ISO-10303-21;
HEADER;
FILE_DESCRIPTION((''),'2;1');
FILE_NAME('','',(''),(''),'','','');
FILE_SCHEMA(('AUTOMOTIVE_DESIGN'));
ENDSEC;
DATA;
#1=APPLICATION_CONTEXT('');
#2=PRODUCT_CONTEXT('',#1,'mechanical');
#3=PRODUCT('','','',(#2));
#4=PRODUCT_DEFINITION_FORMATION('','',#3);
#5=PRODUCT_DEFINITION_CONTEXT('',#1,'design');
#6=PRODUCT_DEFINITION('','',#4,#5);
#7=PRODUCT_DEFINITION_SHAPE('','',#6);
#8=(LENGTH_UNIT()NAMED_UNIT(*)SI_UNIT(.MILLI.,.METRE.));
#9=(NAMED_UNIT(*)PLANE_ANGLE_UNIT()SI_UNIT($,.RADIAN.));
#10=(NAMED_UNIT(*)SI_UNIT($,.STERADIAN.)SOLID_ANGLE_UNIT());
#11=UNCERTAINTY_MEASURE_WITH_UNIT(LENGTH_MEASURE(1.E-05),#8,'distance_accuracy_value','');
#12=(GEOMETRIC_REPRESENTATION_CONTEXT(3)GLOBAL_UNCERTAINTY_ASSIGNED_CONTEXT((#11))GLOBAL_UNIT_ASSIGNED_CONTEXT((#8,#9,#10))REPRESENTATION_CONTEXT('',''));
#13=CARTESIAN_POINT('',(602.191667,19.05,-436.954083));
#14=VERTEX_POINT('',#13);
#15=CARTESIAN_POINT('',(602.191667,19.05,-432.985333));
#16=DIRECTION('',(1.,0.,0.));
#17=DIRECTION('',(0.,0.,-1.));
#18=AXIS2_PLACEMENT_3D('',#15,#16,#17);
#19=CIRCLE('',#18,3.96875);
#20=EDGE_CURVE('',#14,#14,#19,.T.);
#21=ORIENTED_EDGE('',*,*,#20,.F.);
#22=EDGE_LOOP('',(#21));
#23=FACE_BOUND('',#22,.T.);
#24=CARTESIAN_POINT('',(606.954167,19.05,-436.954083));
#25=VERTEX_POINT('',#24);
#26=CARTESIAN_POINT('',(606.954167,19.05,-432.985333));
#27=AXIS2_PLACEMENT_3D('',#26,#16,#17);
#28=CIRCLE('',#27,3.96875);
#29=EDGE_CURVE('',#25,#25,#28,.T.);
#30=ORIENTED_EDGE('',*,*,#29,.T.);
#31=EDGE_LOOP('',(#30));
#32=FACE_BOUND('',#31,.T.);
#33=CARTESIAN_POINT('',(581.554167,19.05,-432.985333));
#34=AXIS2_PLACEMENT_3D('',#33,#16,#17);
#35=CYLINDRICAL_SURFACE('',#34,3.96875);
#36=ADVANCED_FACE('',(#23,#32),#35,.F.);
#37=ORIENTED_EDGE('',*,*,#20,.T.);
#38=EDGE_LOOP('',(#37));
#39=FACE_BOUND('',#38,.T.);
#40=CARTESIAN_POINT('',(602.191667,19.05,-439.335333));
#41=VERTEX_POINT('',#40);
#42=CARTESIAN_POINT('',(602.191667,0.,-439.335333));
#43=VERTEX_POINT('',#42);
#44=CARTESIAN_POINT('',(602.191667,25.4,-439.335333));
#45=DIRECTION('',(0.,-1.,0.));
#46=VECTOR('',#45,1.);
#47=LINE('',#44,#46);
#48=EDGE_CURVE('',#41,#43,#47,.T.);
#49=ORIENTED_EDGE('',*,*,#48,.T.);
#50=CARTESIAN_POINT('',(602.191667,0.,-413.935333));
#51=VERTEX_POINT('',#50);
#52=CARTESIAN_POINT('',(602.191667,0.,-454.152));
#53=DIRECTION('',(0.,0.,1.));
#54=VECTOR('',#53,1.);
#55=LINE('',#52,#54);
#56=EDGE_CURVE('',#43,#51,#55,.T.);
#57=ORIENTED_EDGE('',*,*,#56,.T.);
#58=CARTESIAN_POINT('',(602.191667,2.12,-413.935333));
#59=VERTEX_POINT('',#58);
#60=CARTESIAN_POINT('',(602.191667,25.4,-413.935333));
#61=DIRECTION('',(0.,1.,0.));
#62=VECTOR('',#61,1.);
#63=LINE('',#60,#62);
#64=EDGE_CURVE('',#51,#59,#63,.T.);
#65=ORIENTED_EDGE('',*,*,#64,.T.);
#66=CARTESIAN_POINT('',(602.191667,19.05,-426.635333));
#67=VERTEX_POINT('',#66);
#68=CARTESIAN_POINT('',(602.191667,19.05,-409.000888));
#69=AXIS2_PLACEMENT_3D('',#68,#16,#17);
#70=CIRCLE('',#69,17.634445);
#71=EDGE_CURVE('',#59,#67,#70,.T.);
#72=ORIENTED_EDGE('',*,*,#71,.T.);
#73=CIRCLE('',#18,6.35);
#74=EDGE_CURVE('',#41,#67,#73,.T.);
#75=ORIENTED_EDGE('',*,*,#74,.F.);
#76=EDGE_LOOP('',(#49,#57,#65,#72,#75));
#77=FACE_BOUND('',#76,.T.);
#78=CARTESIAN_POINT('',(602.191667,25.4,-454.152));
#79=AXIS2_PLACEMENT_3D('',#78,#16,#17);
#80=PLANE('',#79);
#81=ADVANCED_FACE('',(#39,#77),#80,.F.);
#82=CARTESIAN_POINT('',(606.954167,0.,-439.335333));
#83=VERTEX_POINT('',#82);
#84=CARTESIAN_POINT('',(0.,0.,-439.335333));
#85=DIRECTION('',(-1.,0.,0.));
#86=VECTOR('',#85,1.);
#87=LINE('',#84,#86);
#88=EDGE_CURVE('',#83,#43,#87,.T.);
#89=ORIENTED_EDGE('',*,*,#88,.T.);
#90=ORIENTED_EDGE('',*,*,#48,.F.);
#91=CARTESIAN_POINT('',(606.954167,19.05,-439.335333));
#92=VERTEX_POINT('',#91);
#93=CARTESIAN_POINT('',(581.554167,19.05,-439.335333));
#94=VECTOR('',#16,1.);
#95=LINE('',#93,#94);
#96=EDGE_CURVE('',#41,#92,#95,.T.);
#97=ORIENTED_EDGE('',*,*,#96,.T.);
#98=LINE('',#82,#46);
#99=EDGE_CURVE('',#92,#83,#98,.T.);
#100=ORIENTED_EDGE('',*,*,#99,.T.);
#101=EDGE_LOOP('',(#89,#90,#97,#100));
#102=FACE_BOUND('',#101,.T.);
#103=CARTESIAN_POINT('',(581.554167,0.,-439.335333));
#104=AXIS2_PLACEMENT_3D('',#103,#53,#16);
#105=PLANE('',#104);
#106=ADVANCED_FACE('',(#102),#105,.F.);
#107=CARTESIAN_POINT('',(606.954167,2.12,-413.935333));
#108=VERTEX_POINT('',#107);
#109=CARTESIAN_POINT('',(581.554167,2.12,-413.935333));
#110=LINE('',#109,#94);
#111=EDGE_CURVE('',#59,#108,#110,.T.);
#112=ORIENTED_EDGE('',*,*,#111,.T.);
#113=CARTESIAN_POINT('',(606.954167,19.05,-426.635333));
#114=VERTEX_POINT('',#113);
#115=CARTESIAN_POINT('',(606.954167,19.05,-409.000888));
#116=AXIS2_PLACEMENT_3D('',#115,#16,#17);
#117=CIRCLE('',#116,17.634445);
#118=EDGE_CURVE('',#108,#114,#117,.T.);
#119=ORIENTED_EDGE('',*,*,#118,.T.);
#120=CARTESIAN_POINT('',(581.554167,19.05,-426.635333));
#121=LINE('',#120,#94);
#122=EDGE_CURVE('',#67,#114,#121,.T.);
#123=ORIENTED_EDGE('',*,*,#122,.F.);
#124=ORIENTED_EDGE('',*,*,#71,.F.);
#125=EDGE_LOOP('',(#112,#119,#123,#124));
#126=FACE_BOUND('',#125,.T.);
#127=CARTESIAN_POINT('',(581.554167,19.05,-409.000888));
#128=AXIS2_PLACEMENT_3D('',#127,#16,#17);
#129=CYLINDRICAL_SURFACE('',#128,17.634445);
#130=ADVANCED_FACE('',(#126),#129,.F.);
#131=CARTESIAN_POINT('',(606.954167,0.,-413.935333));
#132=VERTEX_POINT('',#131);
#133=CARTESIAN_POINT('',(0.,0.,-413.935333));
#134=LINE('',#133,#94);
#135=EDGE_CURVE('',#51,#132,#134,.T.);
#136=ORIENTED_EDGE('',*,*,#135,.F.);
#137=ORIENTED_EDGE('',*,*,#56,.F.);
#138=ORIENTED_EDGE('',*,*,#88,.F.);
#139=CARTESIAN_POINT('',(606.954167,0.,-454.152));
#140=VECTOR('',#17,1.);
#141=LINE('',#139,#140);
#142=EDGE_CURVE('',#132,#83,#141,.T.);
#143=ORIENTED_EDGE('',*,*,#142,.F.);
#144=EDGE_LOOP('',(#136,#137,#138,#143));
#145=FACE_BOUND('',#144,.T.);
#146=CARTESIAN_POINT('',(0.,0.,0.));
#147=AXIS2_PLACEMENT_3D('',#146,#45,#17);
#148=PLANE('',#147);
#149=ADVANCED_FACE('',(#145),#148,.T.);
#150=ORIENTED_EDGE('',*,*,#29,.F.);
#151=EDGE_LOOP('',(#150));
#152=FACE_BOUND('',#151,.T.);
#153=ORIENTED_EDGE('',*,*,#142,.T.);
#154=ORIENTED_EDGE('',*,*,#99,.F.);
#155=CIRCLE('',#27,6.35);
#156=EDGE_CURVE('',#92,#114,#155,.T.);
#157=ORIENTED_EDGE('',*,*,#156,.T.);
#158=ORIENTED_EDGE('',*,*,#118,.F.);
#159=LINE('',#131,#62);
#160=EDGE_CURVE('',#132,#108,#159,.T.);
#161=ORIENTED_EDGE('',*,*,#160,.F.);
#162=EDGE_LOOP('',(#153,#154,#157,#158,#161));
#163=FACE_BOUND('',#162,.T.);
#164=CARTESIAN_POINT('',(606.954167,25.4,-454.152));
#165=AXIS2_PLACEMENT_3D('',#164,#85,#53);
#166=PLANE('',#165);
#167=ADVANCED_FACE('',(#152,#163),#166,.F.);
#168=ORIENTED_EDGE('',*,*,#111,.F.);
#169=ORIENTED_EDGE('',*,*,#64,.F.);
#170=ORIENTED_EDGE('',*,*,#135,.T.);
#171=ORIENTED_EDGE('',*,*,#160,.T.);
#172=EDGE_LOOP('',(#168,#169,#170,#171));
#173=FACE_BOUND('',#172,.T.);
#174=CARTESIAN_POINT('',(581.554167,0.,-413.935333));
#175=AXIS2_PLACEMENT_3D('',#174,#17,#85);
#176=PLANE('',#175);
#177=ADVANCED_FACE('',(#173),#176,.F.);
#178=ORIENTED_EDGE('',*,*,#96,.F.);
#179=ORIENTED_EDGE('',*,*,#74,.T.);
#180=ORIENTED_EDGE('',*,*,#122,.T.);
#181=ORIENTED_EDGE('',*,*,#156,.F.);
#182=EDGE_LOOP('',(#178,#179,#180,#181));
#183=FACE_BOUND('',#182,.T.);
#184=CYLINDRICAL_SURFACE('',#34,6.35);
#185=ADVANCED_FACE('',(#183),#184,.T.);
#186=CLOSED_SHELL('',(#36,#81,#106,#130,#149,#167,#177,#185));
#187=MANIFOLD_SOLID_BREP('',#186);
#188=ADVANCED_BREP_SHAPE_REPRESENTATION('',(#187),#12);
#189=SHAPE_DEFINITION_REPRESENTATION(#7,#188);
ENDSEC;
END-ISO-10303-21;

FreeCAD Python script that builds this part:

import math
import FreeCAD as App
import Part
import Sketcher
Q = App.Units.Quantity

doc = App.newDocument("Part")
body = doc.addObject("PartDesign::Body", "Body")

sketch1 = doc.addObject("Sketcher::SketchObject", "Sketch")
body.addObject(sketch1)
sketch1.AttachmentSupport = (doc.XZ_Plane, [""])
sketch1.MapMode = "FlatFace"
sketch1.addGeometry([
    Part.LineSegment(App.Vector(602.2, -454.2, 0), App.Vector(602.2, -411.8, 0)),
    Part.LineSegment(App.Vector(602.2, -411.8, 0), App.Vector(607, -411.8, 0)),
    Part.LineSegment(App.Vector(607, -411.8, 0), App.Vector(607, -454.2, 0)),
    Part.LineSegment(App.Vector(607, -454.2, 0), App.Vector(602.2, -454.2, 0)),
], False)
sketch1.addConstraint([
    Sketcher.Constraint("Coincident", 0, 2, 1, 1),
    Sketcher.Constraint("Coincident", 1, 2, 2, 1),
    Sketcher.Constraint("Coincident", 2, 2, 3, 1),
    Sketcher.Constraint("Coincident", 3, 2, 0, 1),
    Sketcher.Constraint("Vertical", 0),
    Sketcher.Constraint("Horizontal", 1),
    Sketcher.Constraint("Vertical", 2),
    Sketcher.Constraint("Horizontal", 3),
    Sketcher.Constraint("DistanceX", 1, 1, 1, 2, Q("0.1875 in")),
    Sketcher.Constraint("DistanceY", 2, 2, -1, 1, Q("17.88 in")),
    Sketcher.Constraint("DistanceY", 0, 1, 0, 2, 42.333333),
    Sketcher.Constraint("DistanceX", -1, 1, 0, 2, 602.191667),
])
pad1 = doc.addObject("PartDesign::Pad", "Pad")
body.addObject(pad1)
pad1.Profile = sketch1
pad1.Length = Q("1 in")
pad1.Reversed = True

sketch2 = doc.addObject("Sketcher::SketchObject", "Sketch001")
body.addObject(sketch2)
sketch2.AttachmentSupport = (doc.YZ_Plane, [""])
sketch2.MapMode = "FlatFace"
sketch2.AttachmentOffset = App.Placement(App.Vector(0, 0, 606.954167), App.Rotation())
sketch2.addGeometry([
    Part.ArcOfCircle(Part.Circle(App.Vector(19.1, -433, 0), App.Vector(0, 0, 1), 6.3), math.radians(0), math.radians(90)),
    Part.LineSegment(App.Vector(25.4, -433, 0), App.Vector(25.4, -411.8, 0)),
    Part.LineSegment(App.Vector(25.4, -411.8, 0), App.Vector(0, -411.8, 0)),
    Part.LineSegment(App.Vector(0, -411.8, 0), App.Vector(0, -413.9, 0)),
    Part.LineSegment(App.Vector(0, -413.9, 0), App.Vector(2.1, -413.9, 0)),
    Part.ArcOfCircle(Part.Circle(App.Vector(19.1, -409, 0), App.Vector(0, 0, 1), 17.6), math.radians(-164), math.radians(-90)),
    Part.ArcOfCircle(Part.Circle(App.Vector(19.1, -433, 0), App.Vector(0, 0, 1), 6.3), math.radians(-90), math.radians(0)),
    Part.LineSegment(App.Vector(19.1, -439.3, 0), App.Vector(0, -439.3, 0)),
    Part.LineSegment(App.Vector(0, -439.3, 0), App.Vector(0, -454.2, 0)),
    Part.LineSegment(App.Vector(0, -454.2, 0), App.Vector(25.4, -454.2, 0)),
    Part.LineSegment(App.Vector(25.4, -454.2, 0), App.Vector(25.4, -433, 0)),
    Part.Circle(App.Vector(19.1, -433, 0), App.Vector(0, 0, 1), 4),
], False)
sketch2.addConstraint([
    Sketcher.Constraint("Tangent", 0, 1, 1, 1),
    Sketcher.Constraint("Coincident", 1, 2, 2, 1),
    Sketcher.Constraint("Coincident", 2, 2, 3, 1),
    Sketcher.Constraint("Coincident", 3, 2, 4, 1),
    Sketcher.Constraint("Coincident", 4, 2, 5, 1),
    Sketcher.Constraint("Tangent", 5, 2, 0, 2),
    Sketcher.Constraint("Tangent", 6, 1, 7, 1),
    Sketcher.Constraint("Coincident", 7, 2, 8, 1),
    Sketcher.Constraint("Coincident", 8, 2, 9, 1),
    Sketcher.Constraint("Coincident", 9, 2, 10, 1),
    Sketcher.Constraint("Tangent", 10, 2, 6, 2),
    Sketcher.Constraint("Vertical", 1),
    Sketcher.Constraint("Horizontal", 2),
    Sketcher.Constraint("Vertical", 3),
    Sketcher.Constraint("Horizontal", 4),
    Sketcher.Constraint("Horizontal", 7),
    Sketcher.Constraint("Vertical", 8),
    Sketcher.Constraint("Horizontal", 9),
    Sketcher.Constraint("Vertical", 10),
    Sketcher.Constraint("Coincident", 6, 3, 0, 3),
    Sketcher.Constraint("Coincident", 11, 3, 0, 3),
    Sketcher.Constraint("Equal", 0, 6),
    Sketcher.Constraint("PointOnObject", 2, 2, -2),
    Sketcher.Constraint("PointOnObject", 7, 2, -2),
    Sketcher.Constraint("Vertical", 0, 3, 5, 3),
    Sketcher.Constraint("Equal", 1, 10),
    Sketcher.Constraint("DistanceX", 2, 2, 2, 1, Q("1 in")),
    Sketcher.Constraint("Radius", 0, Q("0.25 in")),
    Sketcher.Constraint("Diameter", 11, Q("0.3125 in")),
    Sketcher.Constraint("DistanceY", 8, 2, -1, 1, Q("17.88 in")),
    Sketcher.Constraint("DistanceY", 0, 3, 3, 2, Q("0.75 in")),
    Sketcher.Constraint("DistanceX", 4, 1, 4, 2, 2.12),
    Sketcher.Constraint("DistanceY", 1, 1, 1, 2, 21.166667),
])
pocket1 = doc.addObject("PartDesign::Pocket", "Pocket")
body.addObject(pocket1)
pocket1.Profile = sketch2
pocket1.Length = Q("1 in")

doc.recompute()
